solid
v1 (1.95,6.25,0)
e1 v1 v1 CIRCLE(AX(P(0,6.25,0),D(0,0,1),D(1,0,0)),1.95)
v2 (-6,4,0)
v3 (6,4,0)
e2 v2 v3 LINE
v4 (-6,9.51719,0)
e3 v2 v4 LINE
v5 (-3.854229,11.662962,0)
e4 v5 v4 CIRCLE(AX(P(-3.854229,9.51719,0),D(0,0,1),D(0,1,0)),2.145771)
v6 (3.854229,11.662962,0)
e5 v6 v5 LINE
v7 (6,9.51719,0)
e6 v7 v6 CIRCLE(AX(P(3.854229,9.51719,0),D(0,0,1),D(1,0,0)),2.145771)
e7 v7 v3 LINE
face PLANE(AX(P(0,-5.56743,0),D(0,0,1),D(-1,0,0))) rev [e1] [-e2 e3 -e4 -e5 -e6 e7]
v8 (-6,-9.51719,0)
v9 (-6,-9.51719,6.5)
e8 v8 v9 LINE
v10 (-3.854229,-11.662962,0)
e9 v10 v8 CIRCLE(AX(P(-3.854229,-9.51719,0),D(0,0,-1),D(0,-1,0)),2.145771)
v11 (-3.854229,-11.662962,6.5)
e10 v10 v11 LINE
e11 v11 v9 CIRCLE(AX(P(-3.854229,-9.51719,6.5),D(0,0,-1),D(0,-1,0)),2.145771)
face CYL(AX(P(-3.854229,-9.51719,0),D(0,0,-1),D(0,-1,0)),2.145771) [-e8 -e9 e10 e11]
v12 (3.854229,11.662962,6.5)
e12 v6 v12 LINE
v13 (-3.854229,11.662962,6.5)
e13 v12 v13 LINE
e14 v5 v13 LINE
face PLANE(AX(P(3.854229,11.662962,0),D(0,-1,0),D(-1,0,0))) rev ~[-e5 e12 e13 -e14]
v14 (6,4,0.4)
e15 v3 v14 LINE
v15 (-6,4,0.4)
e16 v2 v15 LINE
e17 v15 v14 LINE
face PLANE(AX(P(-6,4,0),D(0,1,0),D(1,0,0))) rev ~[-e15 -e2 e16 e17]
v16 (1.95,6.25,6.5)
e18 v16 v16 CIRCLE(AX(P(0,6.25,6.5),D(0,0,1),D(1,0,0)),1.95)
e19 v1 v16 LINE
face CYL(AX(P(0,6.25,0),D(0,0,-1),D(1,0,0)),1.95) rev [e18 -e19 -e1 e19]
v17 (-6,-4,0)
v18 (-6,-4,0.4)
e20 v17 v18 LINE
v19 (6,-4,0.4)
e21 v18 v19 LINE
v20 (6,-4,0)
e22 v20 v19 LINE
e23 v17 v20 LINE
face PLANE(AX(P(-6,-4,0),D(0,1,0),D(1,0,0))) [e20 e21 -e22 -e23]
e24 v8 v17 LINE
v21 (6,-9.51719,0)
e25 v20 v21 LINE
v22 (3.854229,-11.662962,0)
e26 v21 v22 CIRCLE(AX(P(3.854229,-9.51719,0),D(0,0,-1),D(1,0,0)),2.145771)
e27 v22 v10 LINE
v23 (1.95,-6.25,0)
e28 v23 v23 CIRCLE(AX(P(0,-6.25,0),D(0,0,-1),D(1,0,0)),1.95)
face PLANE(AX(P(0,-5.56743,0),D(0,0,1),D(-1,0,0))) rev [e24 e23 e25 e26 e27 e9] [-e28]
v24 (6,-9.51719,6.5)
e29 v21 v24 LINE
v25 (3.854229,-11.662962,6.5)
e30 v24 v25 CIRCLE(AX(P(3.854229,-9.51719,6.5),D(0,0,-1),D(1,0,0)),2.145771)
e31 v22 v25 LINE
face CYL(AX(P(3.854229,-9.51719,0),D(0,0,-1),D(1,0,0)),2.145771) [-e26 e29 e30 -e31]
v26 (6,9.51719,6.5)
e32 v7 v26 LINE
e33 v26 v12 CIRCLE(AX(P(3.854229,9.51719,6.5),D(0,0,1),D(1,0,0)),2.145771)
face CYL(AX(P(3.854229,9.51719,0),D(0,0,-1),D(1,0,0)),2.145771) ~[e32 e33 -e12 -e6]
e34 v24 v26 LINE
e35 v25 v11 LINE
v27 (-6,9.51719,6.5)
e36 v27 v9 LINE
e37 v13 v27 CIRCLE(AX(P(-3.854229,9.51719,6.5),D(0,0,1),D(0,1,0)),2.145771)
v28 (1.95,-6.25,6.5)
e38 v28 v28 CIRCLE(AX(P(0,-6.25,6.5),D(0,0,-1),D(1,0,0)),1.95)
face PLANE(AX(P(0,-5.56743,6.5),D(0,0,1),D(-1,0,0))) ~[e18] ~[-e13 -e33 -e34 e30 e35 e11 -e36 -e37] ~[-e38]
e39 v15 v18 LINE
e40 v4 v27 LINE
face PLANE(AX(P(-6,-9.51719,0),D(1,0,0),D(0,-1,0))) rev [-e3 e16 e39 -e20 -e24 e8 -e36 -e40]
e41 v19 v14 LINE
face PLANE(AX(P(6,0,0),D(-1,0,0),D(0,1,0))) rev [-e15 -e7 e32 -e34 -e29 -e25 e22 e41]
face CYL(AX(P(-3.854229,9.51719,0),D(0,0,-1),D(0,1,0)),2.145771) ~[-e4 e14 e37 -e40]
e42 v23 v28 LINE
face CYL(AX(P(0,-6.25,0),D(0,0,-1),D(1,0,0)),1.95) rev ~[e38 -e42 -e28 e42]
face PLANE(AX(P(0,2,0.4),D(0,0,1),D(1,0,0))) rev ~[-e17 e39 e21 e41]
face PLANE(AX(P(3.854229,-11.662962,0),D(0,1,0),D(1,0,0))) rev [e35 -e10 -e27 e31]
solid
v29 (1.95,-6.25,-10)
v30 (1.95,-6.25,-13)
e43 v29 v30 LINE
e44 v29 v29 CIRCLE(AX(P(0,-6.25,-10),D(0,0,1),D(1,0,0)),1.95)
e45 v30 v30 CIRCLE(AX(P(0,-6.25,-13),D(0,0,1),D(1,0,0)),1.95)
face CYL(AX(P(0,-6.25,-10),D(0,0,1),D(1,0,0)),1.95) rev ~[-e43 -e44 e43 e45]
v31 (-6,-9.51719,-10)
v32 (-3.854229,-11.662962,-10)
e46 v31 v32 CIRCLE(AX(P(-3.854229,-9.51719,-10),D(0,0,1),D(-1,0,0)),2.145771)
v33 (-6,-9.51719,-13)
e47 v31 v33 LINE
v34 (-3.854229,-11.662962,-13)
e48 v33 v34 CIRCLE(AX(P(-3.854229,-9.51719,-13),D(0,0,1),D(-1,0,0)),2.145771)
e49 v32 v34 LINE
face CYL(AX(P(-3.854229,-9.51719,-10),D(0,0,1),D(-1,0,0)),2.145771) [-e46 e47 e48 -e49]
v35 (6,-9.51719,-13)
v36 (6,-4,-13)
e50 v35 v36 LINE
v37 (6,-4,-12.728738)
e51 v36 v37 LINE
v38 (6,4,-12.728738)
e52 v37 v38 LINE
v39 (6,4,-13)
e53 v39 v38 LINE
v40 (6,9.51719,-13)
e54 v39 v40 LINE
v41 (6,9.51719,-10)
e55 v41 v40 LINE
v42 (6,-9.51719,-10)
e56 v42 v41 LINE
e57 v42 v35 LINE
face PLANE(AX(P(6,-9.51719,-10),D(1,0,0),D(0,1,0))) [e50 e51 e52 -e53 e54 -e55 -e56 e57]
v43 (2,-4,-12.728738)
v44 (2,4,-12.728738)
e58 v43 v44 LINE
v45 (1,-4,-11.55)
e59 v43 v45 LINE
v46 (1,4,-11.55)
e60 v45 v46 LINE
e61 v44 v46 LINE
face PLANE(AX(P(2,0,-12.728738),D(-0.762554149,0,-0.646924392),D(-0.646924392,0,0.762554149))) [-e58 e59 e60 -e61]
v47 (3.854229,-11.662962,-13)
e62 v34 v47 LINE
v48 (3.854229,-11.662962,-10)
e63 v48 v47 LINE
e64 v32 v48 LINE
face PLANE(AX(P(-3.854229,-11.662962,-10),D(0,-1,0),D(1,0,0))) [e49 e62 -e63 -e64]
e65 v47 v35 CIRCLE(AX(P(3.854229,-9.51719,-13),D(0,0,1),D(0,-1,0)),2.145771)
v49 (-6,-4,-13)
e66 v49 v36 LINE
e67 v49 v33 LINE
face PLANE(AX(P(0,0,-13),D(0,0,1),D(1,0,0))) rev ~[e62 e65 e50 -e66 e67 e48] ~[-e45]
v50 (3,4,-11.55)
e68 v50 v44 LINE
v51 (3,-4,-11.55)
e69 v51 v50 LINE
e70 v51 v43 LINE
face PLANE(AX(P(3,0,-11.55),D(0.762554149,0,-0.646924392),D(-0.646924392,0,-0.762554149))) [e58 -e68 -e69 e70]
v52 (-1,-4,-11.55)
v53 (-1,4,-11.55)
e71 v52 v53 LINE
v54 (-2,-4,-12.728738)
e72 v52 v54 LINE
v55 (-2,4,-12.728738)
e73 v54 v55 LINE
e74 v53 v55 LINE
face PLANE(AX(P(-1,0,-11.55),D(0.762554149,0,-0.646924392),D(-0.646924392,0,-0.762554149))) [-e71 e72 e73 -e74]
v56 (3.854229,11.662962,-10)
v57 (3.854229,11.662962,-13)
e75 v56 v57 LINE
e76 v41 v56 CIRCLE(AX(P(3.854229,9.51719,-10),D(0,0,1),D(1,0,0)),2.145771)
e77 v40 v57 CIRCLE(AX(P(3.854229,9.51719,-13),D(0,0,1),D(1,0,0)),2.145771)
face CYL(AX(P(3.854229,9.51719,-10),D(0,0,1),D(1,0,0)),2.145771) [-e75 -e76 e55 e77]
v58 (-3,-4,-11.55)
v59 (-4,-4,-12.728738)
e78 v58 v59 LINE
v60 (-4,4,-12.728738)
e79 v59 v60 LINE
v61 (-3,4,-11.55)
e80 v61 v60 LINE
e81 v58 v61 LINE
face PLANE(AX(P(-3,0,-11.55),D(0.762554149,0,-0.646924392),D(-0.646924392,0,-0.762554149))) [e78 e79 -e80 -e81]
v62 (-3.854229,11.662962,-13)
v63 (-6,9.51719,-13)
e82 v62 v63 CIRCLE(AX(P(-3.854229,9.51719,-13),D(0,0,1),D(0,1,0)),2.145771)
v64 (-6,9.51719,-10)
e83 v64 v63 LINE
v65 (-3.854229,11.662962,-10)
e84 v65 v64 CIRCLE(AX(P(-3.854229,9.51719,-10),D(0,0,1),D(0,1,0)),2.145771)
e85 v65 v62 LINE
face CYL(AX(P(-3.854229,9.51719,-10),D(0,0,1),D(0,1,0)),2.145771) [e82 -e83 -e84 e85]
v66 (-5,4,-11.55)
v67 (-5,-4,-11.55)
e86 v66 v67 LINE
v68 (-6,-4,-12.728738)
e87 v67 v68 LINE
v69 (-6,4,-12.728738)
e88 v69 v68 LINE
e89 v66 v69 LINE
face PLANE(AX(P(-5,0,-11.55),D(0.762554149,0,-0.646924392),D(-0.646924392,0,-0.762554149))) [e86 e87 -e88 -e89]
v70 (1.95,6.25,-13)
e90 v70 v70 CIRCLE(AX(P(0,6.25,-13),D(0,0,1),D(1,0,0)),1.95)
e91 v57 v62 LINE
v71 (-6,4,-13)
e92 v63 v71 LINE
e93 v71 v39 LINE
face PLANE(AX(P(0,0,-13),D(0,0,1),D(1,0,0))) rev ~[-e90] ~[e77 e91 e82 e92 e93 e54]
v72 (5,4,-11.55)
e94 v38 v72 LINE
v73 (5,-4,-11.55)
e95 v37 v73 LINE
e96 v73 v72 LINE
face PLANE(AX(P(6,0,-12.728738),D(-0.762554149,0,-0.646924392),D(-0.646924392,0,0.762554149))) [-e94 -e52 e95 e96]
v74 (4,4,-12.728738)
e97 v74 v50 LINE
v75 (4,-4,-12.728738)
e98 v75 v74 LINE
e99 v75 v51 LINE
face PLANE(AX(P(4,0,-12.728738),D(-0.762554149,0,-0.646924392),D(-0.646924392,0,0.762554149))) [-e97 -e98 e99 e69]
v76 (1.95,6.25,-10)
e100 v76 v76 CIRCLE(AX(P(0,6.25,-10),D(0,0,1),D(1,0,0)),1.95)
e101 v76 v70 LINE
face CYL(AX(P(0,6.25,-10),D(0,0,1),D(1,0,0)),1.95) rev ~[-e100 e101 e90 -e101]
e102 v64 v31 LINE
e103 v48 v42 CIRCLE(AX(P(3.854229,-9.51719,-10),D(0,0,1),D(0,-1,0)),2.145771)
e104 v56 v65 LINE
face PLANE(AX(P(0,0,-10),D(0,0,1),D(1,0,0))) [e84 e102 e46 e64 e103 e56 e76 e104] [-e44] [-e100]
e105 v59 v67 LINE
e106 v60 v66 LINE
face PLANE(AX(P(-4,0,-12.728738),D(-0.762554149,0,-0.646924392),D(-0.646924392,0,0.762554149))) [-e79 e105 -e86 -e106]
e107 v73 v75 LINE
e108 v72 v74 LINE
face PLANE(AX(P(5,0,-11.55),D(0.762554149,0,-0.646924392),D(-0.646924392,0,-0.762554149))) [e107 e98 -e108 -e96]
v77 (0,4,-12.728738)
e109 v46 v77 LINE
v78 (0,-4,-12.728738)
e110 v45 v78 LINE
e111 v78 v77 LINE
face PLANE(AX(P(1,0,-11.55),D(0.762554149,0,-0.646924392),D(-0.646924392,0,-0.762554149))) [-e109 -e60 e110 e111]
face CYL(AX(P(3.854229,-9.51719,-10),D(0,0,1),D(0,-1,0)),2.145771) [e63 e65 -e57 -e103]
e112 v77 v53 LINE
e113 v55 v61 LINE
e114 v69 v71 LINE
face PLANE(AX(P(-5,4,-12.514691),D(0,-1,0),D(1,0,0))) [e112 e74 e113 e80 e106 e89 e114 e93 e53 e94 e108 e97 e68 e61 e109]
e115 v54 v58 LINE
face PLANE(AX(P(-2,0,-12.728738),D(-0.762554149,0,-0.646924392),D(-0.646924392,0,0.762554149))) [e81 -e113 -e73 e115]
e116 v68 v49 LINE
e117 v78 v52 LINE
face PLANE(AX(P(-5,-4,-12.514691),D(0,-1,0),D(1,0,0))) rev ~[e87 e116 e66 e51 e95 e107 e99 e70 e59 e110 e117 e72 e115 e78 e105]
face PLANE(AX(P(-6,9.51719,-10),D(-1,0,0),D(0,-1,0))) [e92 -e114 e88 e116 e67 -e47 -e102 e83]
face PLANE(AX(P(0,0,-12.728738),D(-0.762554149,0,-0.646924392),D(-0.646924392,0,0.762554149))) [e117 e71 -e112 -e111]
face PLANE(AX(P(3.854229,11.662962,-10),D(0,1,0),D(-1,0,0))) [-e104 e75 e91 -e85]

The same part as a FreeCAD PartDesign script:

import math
import FreeCAD as App
import Part
import Sketcher

V = App.Vector
Q = App.Units.Quantity

doc = App.newDocument("Part")
body = doc.addObject("PartDesign::Body", "Body")

sketch1 = body.newObject("Sketcher::SketchObject", "Sketch")
sketch1.AttachmentSupport = (doc.getObject("XY_Plane"), [""])
sketch1.MapMode = "FlatFace"
sketch1.addGeometry([
    Part.LineSegment(V(3.854229, 11.662962, 0), V(-3.854229, 11.662962, 0)),
    Part.ArcOfCircle(Part.Circle(V(-3.854229, 9.51719, 0), V(0, 0, 1), 2.145771), math.radians(90), math.radians(180)),
    Part.LineSegment(V(-6, 9.51719, 0), V(-6, 0, 0)),
    Part.LineSegment(V(-6, 0, 0), V(6, 0, 0)),
    Part.LineSegment(V(6, 0, 0), V(6, 9.51719, 0)),
    Part.ArcOfCircle(Part.Circle(V(3.854229, 9.51719, 0), V(0, 0, 1), 2.145771), math.radians(0), math.radians(90)),
    Part.Circle(V(0, 6.25, 0), V(0, 0, 1), 1.95),
], False)
sketch1.addConstraint([
    Sketcher.Constraint("Tangent", 0, 2, 1, 1),
    Sketcher.Constraint("Tangent", 1, 2, 2, 1),
    Sketcher.Constraint("Coincident", 2, 2, 3, 1),
    Sketcher.Constraint("Coincident", 3, 2, 4, 1),
    Sketcher.Constraint("Tangent", 4, 2, 5, 1),
    Sketcher.Constraint("Tangent", 5, 2, 0, 1),
    Sketcher.Constraint("Horizontal", 0),
    Sketcher.Constraint("Vertical", 2),
    Sketcher.Constraint("Horizontal", 3),
    Sketcher.Constraint("Vertical", 4),
    Sketcher.Constraint("Equal", 1, 5),
    Sketcher.Constraint("Symmetric", 2, 2, 3, 2, -1, 1),
    Sketcher.Constraint("PointOnObject", 6, 3, -2),
    Sketcher.Constraint("Diameter", 6, Q("3.9 mm")),
    Sketcher.Constraint("DistanceX", 3, 1, 3, 2, Q("12 mm")),
    Sketcher.Constraint("DistanceY", -1, 1, 6, 3, Q("6.25 mm")),
    Sketcher.Constraint("Radius", 1, Q("2.145771 mm")),
    Sketcher.Constraint("DistanceY", 2, 2, 2, 1, Q("9.51719 mm")),
])
pad1 = body.newObject("PartDesign::Pad", "Pad")
pad1.Profile = sketch1
pad1.Length = 6.5
body2 = doc.addObject("PartDesign::Body", "Body001")
doc.recompute()

body2.BaseFeature = body
doc.recompute()

mirroring = doc.addObject("Part::Mirroring", "Mirroring")
mirroring.Source = body
mirroring.Base = V(0, 0, 0)
mirroring.Normal = V(0, -1, 0)
body3 = doc.addObject("PartDesign::Body", "Body002")
body3.BaseFeature = mirroring
boolean = body2.newObject("PartDesign::Boolean", "Boolean")
boolean.Type = "Fuse"
boolean.addObjects([body3])
doc.recompute()

sketch2 = body2.newObject("Sketcher::SketchObject", "Sketch001")
sketch2.AttachmentSupport = (doc.getObject("XY_Plane001"), [""])
sketch2.MapMode = "FlatFace"
sketch2.addGeometry([
    Part.LineSegment(V(-6, 4, 0), V(-6, -4, 0)),
    Part.LineSegment(V(-6, -4, 0), V(6, -4, 0)),
    Part.LineSegment(V(6, -4, 0), V(6, 4, 0)),
    Part.LineSegment(V(6, 4, 0), V(-6, 4, 0)),
], False)
sketch2.addConstraint([
    Sketcher.Constraint("Coincident", 0, 2, 1, 1),
    Sketcher.Constraint("Coincident", 1, 2, 2, 1),
    Sketcher.Constraint("Coincident", 2, 2, 3, 1),
    Sketcher.Constraint("Coincident", 3, 2, 0, 1),
    Sketcher.Constraint("Vertical", 0),
    Sketcher.Constraint("Horizontal", 1),
    Sketcher.Constraint("Vertical", 2),
    Sketcher.Constraint("Horizontal", 3),
    Sketcher.Constraint("Symmetric", 0, 2, 2, 2, -1, 1),
    Sketcher.Constraint("DistanceX", 1, 1, 1, 2, Q("12 mm")),
    Sketcher.Constraint("DistanceY", 0, 2, 0, 1, Q("8 mm")),
])
pocket1 = body2.newObject("PartDesign::Pocket", "Pocket")
pocket1.Profile = sketch2
pocket1.Length = 0.4
pocket1.Reversed = True
body4 = doc.addObject("PartDesign::Body", "Body003")

sketch3 = body4.newObject("Sketcher::SketchObject", "Sketch002")
sketch3.AttachmentSupport = (doc.getObject("XY_Plane003"), [""])
sketch3.MapMode = "FlatFace"
sketch3.AttachmentOffset = App.Placement(V(0, 0, -10), App.Rotation())
sketch3.addGeometry([
    Part.ArcOfCircle(Part.Circle(V(-3.854229, 9.51719, 0), V(0, 0, 1), 2.145771), math.radians(90), math.radians(180)),
    Part.LineSegment(V(-6, 9.51719, 0), V(-6, -9.51719, 0)),
    Part.ArcOfCircle(Part.Circle(V(-3.854229, -9.51719, 0), V(0, 0, 1), 2.145771), math.radians(180), math.radians(270)),
    Part.LineSegment(V(-3.854229, -11.662962, 0), V(3.854229, -11.662962, 0)),
    Part.ArcOfCircle(Part.Circle(V(3.854229, -9.51719, 0), V(0, 0, 1), 2.145771), math.radians(-90), math.radians(0)),
    Part.LineSegment(V(6, -9.51719, 0), V(6, 9.51719, 0)),
    Part.ArcOfCircle(Part.Circle(V(3.854229, 9.51719, 0), V(0, 0, 1), 2.145771), math.radians(0), math.radians(90)),
    Part.LineSegment(V(3.854229, 11.662962, 0), V(-3.854229, 11.662962, 0)),
    Part.Circle(V(0, -6.25, 0), V(0, 0, 1), 1.95),
    Part.Circle(V(0, 6.25, 0), V(0, 0, 1), 1.95),
], False)
sketch3.addConstraint([
    Sketcher.Constraint("Tangent", 0, 2, 1, 1),
    Sketcher.Constraint("Tangent", 1, 2, 2, 1),
    Sketcher.Constraint("Tangent", 2, 2, 3, 1),
    Sketcher.Constraint("Tangent", 3, 2, 4, 1),
    Sketcher.Constraint("Tangent", 4, 2, 5, 1),
    Sketcher.Constraint("Tangent", 5, 2, 6, 1),
    Sketcher.Constraint("Tangent", 6, 2, 7, 1),
    Sketcher.Constraint("Tangent", 7, 2, 0, 1),
    Sketcher.Constraint("Vertical", 1),
    Sketcher.Constraint("Horizontal", 3),
    Sketcher.Constraint("Vertical", 5),
    Sketcher.Constraint("Horizontal", 7),
    Sketcher.Constraint("Equal", 0, 2),
    Sketcher.Constraint("Equal", 2, 4),
    Sketcher.Constraint("Equal", 4, 6),
    Sketcher.Constraint("Equal", 8, 9),
    Sketcher.Constraint("Symmetric", 0, 3, 4, 3, -1, 1),
    Sketcher.Constraint("Symmetric", 8, 3, 9, 3, -1, 1),
    Sketcher.Constraint("PointOnObject", 8, 3, -2),
    Sketcher.Constraint("Diameter", 8, Q("3.9 mm")),
    Sketcher.Constraint("DistanceX", 0, 2, -1, 1, Q("6 mm")),
    Sketcher.Constraint("DistanceY", 8, 3, 9, 3, Q("12.5 mm")),
    Sketcher.Constraint("Radius", 0, Q("2.145771 mm")),
    Sketcher.Constraint("DistanceY", 1, 2, 1, 1, Q("19.034381 mm")),
])
pad2 = body4.newObject("PartDesign::Pad", "Pad001")
pad2.Profile = sketch3
pad2.Length = 3
pad2.Reversed = True

sketch4 = body4.newObject("Sketcher::SketchObject", "Sketch003")
sketch4.AttachmentSupport = (doc.getObject("XZ_Plane003"), [""])
sketch4.MapMode = "FlatFace"
sketch4.addGeometry([
    Part.LineSegment(V(-6, -12.728738, 0), V(-6, -13, 0)),
    Part.LineSegment(V(-6, -13, 0), V(6, -13, 0)),
    Part.LineSegment(V(6, -13, 0), V(6, -12.728738, 0)),
    Part.LineSegment(V(6, -12.728738, 0), V(5, -11.55, 0)),
    Part.LineSegment(V(5, -11.55, 0), V(4, -12.728738, 0)),
    Part.LineSegment(V(4, -12.728738, 0), V(3, -11.55, 0)),
    Part.LineSegment(V(3, -11.55, 0), V(2, -12.728738, 0)),
    Part.LineSegment(V(2, -12.728738, 0), V(1, -11.55, 0)),
    Part.LineSegment(V(1, -11.55, 0), V(0, -12.728738, 0)),
    Part.LineSegment(V(0, -12.728738, 0), V(-1, -11.55, 0)),
    Part.LineSegment(V(-1, -11.55, 0), V(-2, -12.728738, 0)),
    Part.LineSegment(V(-2, -12.728738, 0), V(-3, -11.55, 0)),
    Part.LineSegment(V(-3, -11.55, 0), V(-4, -12.728738, 0)),
    Part.LineSegment(V(-4, -12.728738, 0), V(-5, -11.55, 0)),
    Part.LineSegment(V(-5, -11.55, 0), V(-6, -12.728738, 0)),
], False)
sketch4.addConstraint([
    Sketcher.Constraint("Coincident", 0, 2, 1, 1),
    Sketcher.Constraint("Coincident", 1, 2, 2, 1),
    Sketcher.Constraint("Coincident", 2, 2, 3, 1),
    Sketcher.Constraint("Coincident", 3, 2, 4, 1),
    Sketcher.Constraint("Coincident", 4, 2, 5, 1),
    Sketcher.Constraint("Coincident", 5, 2, 6, 1),
    Sketcher.Constraint("Coincident", 6, 2, 7, 1),
    Sketcher.Constraint("Coincident", 7, 2, 8, 1),
    Sketcher.Constraint("Coincident", 8, 2, 9, 1),
    Sketcher.Constraint("Coincident", 9, 2, 10, 1),
    Sketcher.Constraint("Coincident", 10, 2, 11, 1),
    Sketcher.Constraint("Coincident", 11, 2, 12, 1),
    Sketcher.Constraint("Coincident", 12, 2, 13, 1),
    Sketcher.Constraint("Coincident", 13, 2, 14, 1),
    Sketcher.Constraint("Coincident", 14, 2, 0, 1),
    Sketcher.Constraint("Vertical", 0),
    Sketcher.Constraint("Horizontal", 1),
    Sketcher.Constraint("Vertical", 2),
    Sketcher.Constraint("Symmetric", 7, 2, 9, 2, -2),
    Sketcher.Constraint("Symmetric", 6, 2, 10, 2, -2),
    Sketcher.Constraint("Symmetric", 5, 2, 11, 2, -2),
    Sketcher.Constraint("Symmetric", 4, 2, 12, 2, -2),
    Sketcher.Constraint("Symmetric", 3, 2, 13, 2, -2),
    Sketcher.Constraint("Symmetric", 2, 2, 14, 2, -2),
    Sketcher.Constraint("PointOnObject", 8, 2, -2),
    Sketcher.Constraint("Parallel", 3, 5),
    Sketcher.Constraint("Parallel", 4, 6),
    Sketcher.Constraint("Parallel", 5, 7),
    Sketcher.Constraint("Parallel", 6, 8),
    Sketcher.Constraint("Parallel", 7, 9),
    Sketcher.Constraint("Horizontal", 2, 2, 4, 2),
    Sketcher.Constraint("Horizontal", 3, 2, 5, 2),
    Sketcher.Constraint("Horizontal", 4, 2, 6, 2),
    Sketcher.Constraint("Horizontal", 5, 2, 7, 2),
    Sketcher.Constraint("Horizontal", 6, 2, 8, 2),
    Sketcher.Constraint("DistanceX", 1, 1, 1, 2, Q("12 mm")),
    Sketcher.Constraint("DistanceY", 0, 2, -1, 1, Q("13 mm")),
    Sketcher.Constraint("DistanceY", 3, 2, -1, 1, Q("11.55 mm")),
    Sketcher.Constraint("DistanceY", 0, 2, 0, 1, Q("0.271262 mm")),
])
pocket2 = body4.newObject("PartDesign::Pocket", "Pocket001")
pocket2.Profile = sketch4
pocket2.Type = "TwoLengths"
pocket2.Length = 4
pocket2.Length2 = 4
mirroring.Visibility = False

doc.recompute()
